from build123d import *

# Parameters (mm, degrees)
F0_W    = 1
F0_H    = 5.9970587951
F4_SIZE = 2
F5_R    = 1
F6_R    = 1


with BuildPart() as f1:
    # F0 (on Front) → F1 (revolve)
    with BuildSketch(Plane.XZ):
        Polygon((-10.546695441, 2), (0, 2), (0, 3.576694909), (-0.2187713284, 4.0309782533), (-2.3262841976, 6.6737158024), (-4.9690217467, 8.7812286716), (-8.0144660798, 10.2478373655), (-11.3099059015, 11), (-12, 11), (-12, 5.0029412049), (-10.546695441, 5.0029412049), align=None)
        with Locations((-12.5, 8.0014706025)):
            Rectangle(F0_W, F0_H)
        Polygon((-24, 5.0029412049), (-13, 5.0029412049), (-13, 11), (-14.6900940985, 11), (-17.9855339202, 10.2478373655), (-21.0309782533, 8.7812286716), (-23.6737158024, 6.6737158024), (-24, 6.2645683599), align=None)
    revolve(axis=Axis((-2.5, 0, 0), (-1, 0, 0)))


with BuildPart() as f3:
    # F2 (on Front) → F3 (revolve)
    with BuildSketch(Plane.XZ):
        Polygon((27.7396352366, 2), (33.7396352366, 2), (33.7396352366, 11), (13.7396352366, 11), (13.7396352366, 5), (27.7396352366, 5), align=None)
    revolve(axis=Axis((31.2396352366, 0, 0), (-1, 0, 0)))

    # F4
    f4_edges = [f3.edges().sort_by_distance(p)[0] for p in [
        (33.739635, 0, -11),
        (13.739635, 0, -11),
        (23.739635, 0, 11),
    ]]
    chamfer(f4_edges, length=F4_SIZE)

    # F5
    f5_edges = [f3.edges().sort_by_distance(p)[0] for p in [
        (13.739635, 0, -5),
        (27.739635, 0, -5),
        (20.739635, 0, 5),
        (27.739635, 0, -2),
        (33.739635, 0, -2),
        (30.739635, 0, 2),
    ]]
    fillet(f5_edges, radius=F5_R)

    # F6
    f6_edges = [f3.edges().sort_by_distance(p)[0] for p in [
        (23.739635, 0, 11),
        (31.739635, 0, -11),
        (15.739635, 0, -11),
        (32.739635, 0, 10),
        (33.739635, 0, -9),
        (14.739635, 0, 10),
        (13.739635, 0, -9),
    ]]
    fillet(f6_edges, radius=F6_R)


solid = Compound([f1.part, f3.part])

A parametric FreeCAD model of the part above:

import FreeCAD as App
import Part
import Sketcher

V = App.Vector


def edges_at(feature, points):
    """Names of the edges that pass closest to the given points."""
    edges = feature.Shape.Edges
    near = lambda p: min(range(len(edges)), key=lambda i: edges[i].distToShape(Part.Vertex(*p))[0])
    return sorted({f"Edge{near(p) + 1}" for p in points})


def add_polygon(sketch, points):
    """Adds a closed chain of lines whose ends are joined by coincident constraints."""
    first, n = sketch.GeometryCount, len(points)
    for a, b in zip(points, points[1:] + points[:1]):
        sketch.addGeometry(Part.LineSegment(App.Vector(*a, 0), App.Vector(*b, 0)), False)
    for i in range(n):
        sketch.addConstraint(Sketcher.Constraint("Coincident", first + i, 2, first + (i + 1) % n, 1))

doc = App.newDocument("Part")
params = doc.addObject("Spreadsheet::Sheet", "Params")
for row, (alias, value) in enumerate([
    ("sketch1_width", "1 mm"),
    ("sketch1_width2", "11 mm"),
    ("revolution_angle", "360 deg"),
    ("sketch2_width", "6 mm"),
    ("sketch2_width2", "20 mm"),
    ("sketch2_height", "9 mm"),
    ("revolution2_angle", "360 deg"),
    ("chamfer_size", "2 mm"),
    ("fillet_radius", "1 mm"),
    ("fillet2_radius", "1 mm"),
], start=1):
    params.set(f"A{row}", alias)
    params.set(f"B{row}", "=" + value)
    params.setAlias(f"B{row}", alias)

body = doc.addObject("PartDesign::Body", "Body")

# Sketch on XZ plane
sketch1 = body.newObject("Sketcher::SketchObject", "Sketch")
sketch1.AttachmentSupport = (doc.getObject("XZ_Plane"), [""])
sketch1.MapMode = "FlatFace"
add_polygon(sketch1, [(-10.5, 2), (0, 2), (0, 3.6), (-0.2, 4), (-2.3, 6.7), (-5, 8.8), (-8, 10.2), (-11.3, 11), (-12, 11), (-13, 11), (-14.7, 11), (-18, 10.2), (-21, 8.8), (-23.7, 6.7), (-24, 6.3), (-24, 5), (-13, 5), (-12, 5), (-10.5, 5)])  # lines 0-18
sketch1.addConstraint(Sketcher.Constraint("Horizontal", 0))
sketch1.addConstraint(Sketcher.Constraint("Vertical", 1))
sketch1.addConstraint(Sketcher.Constraint("Horizontal", 7))
sketch1.addConstraint(Sketcher.Constraint("Horizontal", 8))
sketch1.addConstraint(Sketcher.Constraint("Horizontal", 9))
sketch1.addConstraint(Sketcher.Constraint("Vertical", 14))
sketch1.addConstraint(Sketcher.Constraint("Horizontal", 15))
sketch1.addConstraint(Sketcher.Constraint("Horizontal", 16))
sketch1.addConstraint(Sketcher.Constraint("Horizontal", 17))
sketch1.addConstraint(Sketcher.Constraint("Vertical", 18))
sketch1.addConstraint(Sketcher.Constraint("PointOnObject", 0, 2, -2))
sketch1.addConstraint(Sketcher.Constraint("Perpendicular", 2, 11))
sketch1.addConstraint(Sketcher.Constraint("Perpendicular", 3, 12))
sketch1.addConstraint(Sketcher.Constraint("Perpendicular", 4, 13))
sketch1.addConstraint(Sketcher.Constraint("Horizontal", 5, 2, 10, 2))
sketch1.addConstraint(Sketcher.Constraint("Horizontal", 4, 2, 11, 2))
sketch1.addConstraint(Sketcher.Constraint("Horizontal", 3, 2, 12, 2))
sketch1.addConstraint(Sketcher.Constraint("Vertical", 8, 2, 15, 2))
sketch1.addConstraint(Sketcher.Constraint("Vertical", 7, 2, 16, 2))
sketch1.addConstraint(Sketcher.Constraint("Equal", 3, 4))
sketch1.addConstraint(Sketcher.Constraint("Equal", 4, 5))
sketch1.addConstraint(Sketcher.Constraint("Equal", 5, 6))
sketch1.addConstraint(Sketcher.Constraint("Equal", 6, 10))
sketch1.addConstraint(Sketcher.Constraint("Equal", 10, 11))
sketch1.addConstraint(Sketcher.Constraint("Equal", 11, 12))
sketch1.addConstraint(Sketcher.Constraint("DistanceX", 8, 2, 8, 1, 1.0))
sketch1.addConstraint(Sketcher.Constraint("DistanceX", 15, 1, 15, 2, 11.0))
sketch1.addConstraint(Sketcher.Constraint("DistanceY", -1, 1, 0, 2, 2.0))
sketch1.addConstraint(Sketcher.Constraint("DistanceY", -1, 1, 6, 2, 11.0))
sketch1.addConstraint(Sketcher.Constraint("DistanceX", 7, 2, -1, 1, 12.0))
sketch1.addConstraint(Sketcher.Constraint("DistanceY", 18, 2, 18, 1, 3.002941))
sketch1.addConstraint(Sketcher.Constraint("Distance", 3, 3.380188))
sketch1.addConstraint(Sketcher.Constraint("Distance", 13, 0.523319))
sketch1.addConstraint(Sketcher.Constraint("DistanceX", 0, 1, 0, 2, 10.546695))
sketch1.addConstraint(Sketcher.Constraint("DistanceX", 7, 2, 7, 1, 0.690094))
sketch1.addConstraint(Sketcher.Constraint("DistanceX", 9, 2, 9, 1, 1.690094))
sketch1.addConstraint(Sketcher.Constraint("DistanceY", 1, 1, 1, 2, 1.576695))
sketch1.addConstraint(Sketcher.Constraint("DistanceY", 14, 2, 14, 1, 1.261627))
sketch1.setExpression("Constraints[44]", "Params.sketch1_width")
sketch1.setExpression("Constraints[45]", "Params.sketch1_width2")
revolution = body.newObject("PartDesign::Revolution", "Revolution")
revolution.Profile = sketch1
revolution.ReferenceAxis = (sketch1, ["H_Axis"])
revolution.setExpression("Angle", "Params.revolution_angle")
body2 = doc.addObject("PartDesign::Body", "Body001")

# Sketch on XZ plane
sketch2 = body2.newObject("Sketcher::SketchObject", "Sketch001")
sketch2.AttachmentSupport = (doc.getObject("XZ_Plane001"), [""])
sketch2.MapMode = "FlatFace"
add_polygon(sketch2, [(27.7, 2), (33.7, 2), (33.7, 11), (13.7, 11), (13.7, 5), (27.7, 5)])  # lines 0-5
sketch2.addConstraint(Sketcher.Constraint("Horizontal", 0))
sketch2.addConstraint(Sketcher.Constraint("Vertical", 1))
sketch2.addConstraint(Sketcher.Constraint("Horizontal", 2))
sketch2.addConstraint(Sketcher.Constraint("Vertical", 3))
sketch2.addConstraint(Sketcher.Constraint("Horizontal", 4))
sketch2.addConstraint(Sketcher.Constraint("Vertical", 5))
sketch2.addConstraint(Sketcher.Constraint("Equal", 0, 3))
sketch2.addConstraint(Sketcher.Constraint("DistanceX", 0, 1, 0, 2, 6.0))
sketch2.addConstraint(Sketcher.Constraint("DistanceX", 2, 2, 2, 1, 20.0))
sketch2.addConstraint(Sketcher.Constraint("DistanceY", 1, 1, 1, 2, 9.0))
sketch2.addConstraint(Sketcher.Constraint("DistanceY", -1, 1, 0, 2, 2.0))
sketch2.addConstraint(Sketcher.Constraint("DistanceX", -1, 1, 0, 2, 33.739635))
sketch2.setExpression("Constraints[13]", "Params.sketch2_width")
sketch2.setExpression("Constraints[14]", "Params.sketch2_width2")
sketch2.setExpression("Constraints[15]", "Params.sketch2_height")
revolution2 = body2.newObject("PartDesign::Revolution", "Revolution001")
revolution2.Profile = sketch2
revolution2.ReferenceAxis = (sketch2, ["H_Axis"])
revolution2.setExpression("Angle", "Params.revolution2_angle")
doc.recompute()

chamfer = body2.newObject("PartDesign::Chamfer", "Chamfer")
chamfer.Base = (revolution2, edges_at(revolution2, [(33.74, 0, -11), (13.74, 0, -11), (23.74, 0, 11)]))
chamfer.setExpression("Size", "Params.chamfer_size")
doc.recompute()

fillet = body2.newObject("PartDesign::Fillet", "Fillet")
fillet.Base = (chamfer, edges_at(chamfer, [
    (13.74, 0, -5),
    (27.74, 0, -5),
    (20.74, 0, 5),
    (27.74, 0, -2),
    (33.74, 0, -2),
    (30.74, 0, 2),
]))
fillet.setExpression("Radius", "Params.fillet_radius")
doc.recompute()

fillet2 = body2.newObject("PartDesign::Fillet", "Fillet001")
fillet2.Base = (fillet, edges_at(fillet, [
    (23.74, 0, 11),
    (31.74, 0, -11),
    (15.74, 0, -11),
    (32.74, 0, 10),
    (33.74, 0, -9),
    (14.74, 0, 10),
    (13.74, 0, -9),
]))
fillet2.setExpression("Radius", "Params.fillet2_radius")

doc.recompute()
